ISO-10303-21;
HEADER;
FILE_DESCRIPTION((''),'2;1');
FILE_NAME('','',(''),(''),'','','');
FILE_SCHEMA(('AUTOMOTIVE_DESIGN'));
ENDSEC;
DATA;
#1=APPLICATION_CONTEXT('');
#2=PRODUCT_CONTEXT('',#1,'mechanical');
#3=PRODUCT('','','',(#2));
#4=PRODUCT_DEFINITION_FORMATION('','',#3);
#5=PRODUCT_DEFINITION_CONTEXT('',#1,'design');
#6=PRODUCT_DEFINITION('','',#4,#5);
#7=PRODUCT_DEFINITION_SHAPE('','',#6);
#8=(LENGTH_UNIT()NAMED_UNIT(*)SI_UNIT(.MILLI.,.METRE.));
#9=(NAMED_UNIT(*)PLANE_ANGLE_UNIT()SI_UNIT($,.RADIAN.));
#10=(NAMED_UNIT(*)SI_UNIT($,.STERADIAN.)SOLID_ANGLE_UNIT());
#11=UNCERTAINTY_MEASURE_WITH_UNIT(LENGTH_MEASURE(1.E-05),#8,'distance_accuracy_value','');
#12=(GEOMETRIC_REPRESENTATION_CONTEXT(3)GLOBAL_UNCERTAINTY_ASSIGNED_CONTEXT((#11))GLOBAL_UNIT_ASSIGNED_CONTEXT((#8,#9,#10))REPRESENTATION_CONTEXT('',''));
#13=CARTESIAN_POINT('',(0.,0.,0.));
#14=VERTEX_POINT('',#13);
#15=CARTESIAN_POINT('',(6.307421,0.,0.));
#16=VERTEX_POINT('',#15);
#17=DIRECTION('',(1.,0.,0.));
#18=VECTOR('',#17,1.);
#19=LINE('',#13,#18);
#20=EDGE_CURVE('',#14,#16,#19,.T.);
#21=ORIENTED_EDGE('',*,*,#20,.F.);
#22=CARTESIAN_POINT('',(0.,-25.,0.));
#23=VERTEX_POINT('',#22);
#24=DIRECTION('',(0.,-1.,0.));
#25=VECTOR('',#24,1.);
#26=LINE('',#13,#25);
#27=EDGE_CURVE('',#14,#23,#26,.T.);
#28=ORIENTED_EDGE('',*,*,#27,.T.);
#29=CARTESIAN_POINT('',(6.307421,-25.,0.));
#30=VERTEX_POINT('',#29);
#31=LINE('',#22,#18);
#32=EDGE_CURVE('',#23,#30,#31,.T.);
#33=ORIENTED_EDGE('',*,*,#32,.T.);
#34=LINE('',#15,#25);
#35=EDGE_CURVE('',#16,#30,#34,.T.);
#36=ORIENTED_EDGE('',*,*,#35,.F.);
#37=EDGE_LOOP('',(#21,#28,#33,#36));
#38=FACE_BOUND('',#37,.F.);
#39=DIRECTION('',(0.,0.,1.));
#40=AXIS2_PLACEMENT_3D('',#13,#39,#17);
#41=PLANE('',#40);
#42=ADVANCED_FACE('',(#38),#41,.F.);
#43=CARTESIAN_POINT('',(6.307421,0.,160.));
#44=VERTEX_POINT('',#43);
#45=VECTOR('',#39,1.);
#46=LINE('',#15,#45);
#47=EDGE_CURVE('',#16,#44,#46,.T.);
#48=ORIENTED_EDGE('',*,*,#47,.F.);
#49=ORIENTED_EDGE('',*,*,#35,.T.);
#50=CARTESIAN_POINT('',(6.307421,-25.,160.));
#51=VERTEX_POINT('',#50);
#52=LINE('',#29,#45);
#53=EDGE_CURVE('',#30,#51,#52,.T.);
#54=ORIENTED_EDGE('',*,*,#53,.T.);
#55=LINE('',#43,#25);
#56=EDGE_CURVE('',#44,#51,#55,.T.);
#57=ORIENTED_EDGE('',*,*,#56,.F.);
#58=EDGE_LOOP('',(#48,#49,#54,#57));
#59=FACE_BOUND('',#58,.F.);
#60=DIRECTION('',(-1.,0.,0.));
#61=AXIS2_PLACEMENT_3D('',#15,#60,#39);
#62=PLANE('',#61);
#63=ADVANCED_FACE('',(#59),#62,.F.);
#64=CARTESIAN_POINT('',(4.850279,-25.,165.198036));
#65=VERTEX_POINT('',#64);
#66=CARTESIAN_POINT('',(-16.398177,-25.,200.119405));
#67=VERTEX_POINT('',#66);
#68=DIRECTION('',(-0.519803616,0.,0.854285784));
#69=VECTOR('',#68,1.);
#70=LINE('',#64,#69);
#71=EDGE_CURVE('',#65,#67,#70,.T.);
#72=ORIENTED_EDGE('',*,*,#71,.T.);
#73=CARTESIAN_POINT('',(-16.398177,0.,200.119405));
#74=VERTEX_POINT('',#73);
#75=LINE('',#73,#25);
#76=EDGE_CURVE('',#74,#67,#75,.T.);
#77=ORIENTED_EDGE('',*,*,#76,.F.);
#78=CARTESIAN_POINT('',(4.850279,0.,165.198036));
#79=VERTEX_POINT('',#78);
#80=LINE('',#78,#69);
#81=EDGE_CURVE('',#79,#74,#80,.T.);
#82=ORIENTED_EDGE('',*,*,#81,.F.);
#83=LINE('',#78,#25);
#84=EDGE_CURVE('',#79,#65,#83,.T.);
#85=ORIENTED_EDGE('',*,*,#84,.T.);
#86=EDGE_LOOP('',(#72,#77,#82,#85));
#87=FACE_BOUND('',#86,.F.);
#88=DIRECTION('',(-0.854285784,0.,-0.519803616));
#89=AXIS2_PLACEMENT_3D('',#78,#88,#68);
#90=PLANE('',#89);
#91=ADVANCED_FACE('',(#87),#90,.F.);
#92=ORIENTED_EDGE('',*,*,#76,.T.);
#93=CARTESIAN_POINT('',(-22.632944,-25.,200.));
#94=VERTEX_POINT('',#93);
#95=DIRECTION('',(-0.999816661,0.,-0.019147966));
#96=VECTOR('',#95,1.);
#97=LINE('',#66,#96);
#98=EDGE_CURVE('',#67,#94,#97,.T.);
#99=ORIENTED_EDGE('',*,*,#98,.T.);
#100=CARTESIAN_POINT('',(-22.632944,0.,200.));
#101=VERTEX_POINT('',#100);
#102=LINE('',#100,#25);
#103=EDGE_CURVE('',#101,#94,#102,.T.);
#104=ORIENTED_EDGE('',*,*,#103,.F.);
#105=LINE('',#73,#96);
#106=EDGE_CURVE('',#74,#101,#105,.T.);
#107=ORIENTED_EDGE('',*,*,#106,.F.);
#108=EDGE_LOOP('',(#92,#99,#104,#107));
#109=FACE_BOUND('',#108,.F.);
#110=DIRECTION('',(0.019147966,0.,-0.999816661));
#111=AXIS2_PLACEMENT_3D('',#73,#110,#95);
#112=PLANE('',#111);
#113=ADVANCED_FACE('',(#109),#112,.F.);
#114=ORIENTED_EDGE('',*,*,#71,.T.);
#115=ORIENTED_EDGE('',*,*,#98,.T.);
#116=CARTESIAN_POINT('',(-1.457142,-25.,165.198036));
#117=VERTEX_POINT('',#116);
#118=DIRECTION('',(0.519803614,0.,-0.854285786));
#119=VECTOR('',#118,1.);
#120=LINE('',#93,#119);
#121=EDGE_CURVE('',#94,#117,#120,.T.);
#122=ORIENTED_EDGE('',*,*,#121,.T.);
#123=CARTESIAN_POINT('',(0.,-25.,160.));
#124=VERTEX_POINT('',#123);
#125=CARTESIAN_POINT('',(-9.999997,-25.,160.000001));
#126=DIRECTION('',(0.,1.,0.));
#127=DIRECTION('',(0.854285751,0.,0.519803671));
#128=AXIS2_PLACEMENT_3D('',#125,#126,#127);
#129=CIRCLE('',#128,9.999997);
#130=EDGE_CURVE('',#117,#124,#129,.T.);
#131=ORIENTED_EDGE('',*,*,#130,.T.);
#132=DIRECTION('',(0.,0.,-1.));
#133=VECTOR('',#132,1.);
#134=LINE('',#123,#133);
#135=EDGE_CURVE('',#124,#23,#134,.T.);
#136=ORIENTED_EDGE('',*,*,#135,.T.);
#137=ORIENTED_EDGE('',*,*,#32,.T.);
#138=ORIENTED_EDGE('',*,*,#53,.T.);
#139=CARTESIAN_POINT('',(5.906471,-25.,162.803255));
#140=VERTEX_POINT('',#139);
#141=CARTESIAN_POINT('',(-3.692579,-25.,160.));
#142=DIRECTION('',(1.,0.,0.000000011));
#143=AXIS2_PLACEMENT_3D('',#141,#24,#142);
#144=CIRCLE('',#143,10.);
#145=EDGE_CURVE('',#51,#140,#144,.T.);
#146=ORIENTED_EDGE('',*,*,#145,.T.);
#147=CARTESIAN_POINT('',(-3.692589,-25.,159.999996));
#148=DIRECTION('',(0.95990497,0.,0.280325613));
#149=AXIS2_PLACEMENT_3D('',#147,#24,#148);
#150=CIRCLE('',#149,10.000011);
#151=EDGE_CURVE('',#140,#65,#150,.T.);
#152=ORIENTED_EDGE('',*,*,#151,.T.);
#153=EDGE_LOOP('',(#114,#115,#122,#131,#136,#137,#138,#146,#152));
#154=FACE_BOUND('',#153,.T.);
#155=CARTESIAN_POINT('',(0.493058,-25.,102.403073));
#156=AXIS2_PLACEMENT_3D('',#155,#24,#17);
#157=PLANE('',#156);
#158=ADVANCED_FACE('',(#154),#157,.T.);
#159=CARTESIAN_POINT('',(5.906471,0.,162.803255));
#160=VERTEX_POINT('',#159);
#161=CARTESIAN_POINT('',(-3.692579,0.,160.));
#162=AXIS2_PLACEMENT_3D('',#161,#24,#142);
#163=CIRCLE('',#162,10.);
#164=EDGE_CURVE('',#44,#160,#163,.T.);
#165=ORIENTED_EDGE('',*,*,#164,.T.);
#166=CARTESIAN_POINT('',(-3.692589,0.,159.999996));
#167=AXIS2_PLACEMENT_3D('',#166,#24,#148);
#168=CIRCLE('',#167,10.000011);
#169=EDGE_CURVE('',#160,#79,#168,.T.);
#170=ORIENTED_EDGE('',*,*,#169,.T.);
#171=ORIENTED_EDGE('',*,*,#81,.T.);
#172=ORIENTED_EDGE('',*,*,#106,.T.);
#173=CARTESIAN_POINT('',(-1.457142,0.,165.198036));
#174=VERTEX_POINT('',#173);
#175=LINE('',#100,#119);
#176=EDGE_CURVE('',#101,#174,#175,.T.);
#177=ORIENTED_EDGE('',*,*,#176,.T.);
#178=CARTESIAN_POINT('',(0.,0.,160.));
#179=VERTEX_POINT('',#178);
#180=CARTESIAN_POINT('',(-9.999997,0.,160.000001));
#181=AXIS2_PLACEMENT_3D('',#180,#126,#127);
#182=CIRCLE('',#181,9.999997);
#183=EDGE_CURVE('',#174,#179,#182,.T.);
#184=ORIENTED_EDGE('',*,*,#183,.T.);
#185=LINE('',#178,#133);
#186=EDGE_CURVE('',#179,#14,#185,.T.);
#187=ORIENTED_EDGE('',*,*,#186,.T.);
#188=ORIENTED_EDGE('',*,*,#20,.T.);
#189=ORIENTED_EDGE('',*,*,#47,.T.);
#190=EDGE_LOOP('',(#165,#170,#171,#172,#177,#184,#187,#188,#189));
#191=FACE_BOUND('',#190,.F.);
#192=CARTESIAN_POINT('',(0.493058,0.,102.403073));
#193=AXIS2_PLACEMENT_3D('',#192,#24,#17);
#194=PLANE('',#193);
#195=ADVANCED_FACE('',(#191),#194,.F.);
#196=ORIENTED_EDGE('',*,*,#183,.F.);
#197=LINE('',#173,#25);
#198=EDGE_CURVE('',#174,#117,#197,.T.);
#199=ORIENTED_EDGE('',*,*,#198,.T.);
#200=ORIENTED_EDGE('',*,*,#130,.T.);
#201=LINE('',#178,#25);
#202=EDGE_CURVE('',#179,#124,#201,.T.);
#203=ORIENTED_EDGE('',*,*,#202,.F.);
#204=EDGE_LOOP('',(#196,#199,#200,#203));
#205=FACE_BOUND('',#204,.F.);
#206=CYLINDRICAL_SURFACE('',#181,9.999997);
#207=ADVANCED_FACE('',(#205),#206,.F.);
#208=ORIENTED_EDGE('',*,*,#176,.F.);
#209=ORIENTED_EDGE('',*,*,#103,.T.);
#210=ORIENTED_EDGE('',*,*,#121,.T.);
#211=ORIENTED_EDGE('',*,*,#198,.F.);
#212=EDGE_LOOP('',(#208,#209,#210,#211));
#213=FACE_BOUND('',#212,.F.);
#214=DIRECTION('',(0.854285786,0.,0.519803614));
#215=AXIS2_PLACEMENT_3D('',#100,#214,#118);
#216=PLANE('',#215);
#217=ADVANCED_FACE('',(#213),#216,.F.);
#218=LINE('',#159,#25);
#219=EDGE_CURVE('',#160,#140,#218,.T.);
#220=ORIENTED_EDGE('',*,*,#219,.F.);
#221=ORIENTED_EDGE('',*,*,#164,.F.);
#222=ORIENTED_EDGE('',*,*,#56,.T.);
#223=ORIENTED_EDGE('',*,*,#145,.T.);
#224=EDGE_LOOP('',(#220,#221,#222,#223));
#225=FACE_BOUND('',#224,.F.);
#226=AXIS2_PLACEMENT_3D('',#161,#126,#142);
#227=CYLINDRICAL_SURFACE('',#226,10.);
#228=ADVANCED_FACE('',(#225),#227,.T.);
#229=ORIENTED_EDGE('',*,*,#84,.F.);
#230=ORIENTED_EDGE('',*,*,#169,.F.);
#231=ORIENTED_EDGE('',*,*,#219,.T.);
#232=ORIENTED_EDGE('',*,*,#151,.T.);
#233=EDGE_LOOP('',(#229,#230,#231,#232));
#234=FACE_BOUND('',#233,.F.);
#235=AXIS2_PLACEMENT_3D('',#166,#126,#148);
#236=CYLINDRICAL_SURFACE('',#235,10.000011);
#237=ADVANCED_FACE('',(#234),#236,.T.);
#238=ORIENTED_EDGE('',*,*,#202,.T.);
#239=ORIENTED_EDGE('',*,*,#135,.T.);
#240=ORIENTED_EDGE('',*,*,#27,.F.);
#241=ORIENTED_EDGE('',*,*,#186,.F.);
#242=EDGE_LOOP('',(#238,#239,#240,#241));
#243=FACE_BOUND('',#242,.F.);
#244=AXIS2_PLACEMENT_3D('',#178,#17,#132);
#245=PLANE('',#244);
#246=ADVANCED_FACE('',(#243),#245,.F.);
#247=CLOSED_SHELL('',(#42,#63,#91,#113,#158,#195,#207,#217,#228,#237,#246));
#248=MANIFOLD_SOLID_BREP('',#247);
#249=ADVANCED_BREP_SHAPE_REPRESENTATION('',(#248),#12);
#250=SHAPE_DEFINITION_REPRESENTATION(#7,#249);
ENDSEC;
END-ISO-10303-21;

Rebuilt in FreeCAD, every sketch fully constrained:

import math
import FreeCAD as App
import Part
import Sketcher
Q = App.Units.Quantity

doc = App.newDocument("Part")
params = doc.addObject("Spreadsheet::Sheet", "Params")
for row, (alias, value) in enumerate([
    ("sketch1_radius", "10 mm"),
    ("sketch1_height", "160 mm"),
    ("pad1_length", "25 mm"),
], start=1):
    params.set(f"A{row}", alias)
    params.set(f"B{row}", "=" + value)
    params.setAlias(f"B{row}", alias)

body = doc.addObject("PartDesign::Body", "Body")

sketch1 = body.newObject("Sketcher::SketchObject", "Sketch")
sketch1.AttachmentSupport = (doc.getObject("XZ_Plane"), [""])
sketch1.MapMode = "FlatFace"
sketch1.addGeometry(Part.ArcOfCircle(Part.Circle(App.Vector(-10, 160, 0), App.Vector(0, 0, 1), 10), math.radians(0), math.radians(31)), False)
sketch1.addGeometry(Part.LineSegment(App.Vector(0, 160, 0), App.Vector(0, 0, 0)), False)
sketch1.addGeometry(Part.LineSegment(App.Vector(0, 0, 0), App.Vector(6.3, 0, 0)), False)
sketch1.addGeometry(Part.LineSegment(App.Vector(6.3, 0, 0), App.Vector(6.3, 160, 0)), False)
sketch1.addGeometry(Part.ArcOfCircle(Part.Circle(App.Vector(-3.7, 160, 0), App.Vector(0, 0, 1), 10), math.radians(0), math.radians(16.28)), False)
sketch1.addGeometry(Part.ArcOfCircle(Part.Circle(App.Vector(-3.7, 160, 0), App.Vector(0, 0, 1), 10), math.radians(16.28), math.radians(31.32)), False)
sketch1.addGeometry(Part.LineSegment(App.Vector(4.9, 165.2, 0), App.Vector(-16.4, 200.1, 0)), False)
sketch1.addGeometry(Part.LineSegment(App.Vector(-16.4, 200.1, 0), App.Vector(-22.6, 200, 0)), False)
sketch1.addGeometry(Part.LineSegment(App.Vector(-22.6, 200, 0), App.Vector(-1.5, 165.2, 0)), False)
sketch1.addConstraint(Sketcher.Constraint("Tangent", 0, 1, 1, 1))
sketch1.addConstraint(Sketcher.Constraint("Coincident", 1, 2, 2, 1))
sketch1.addConstraint(Sketcher.Constraint("Coincident", 2, 2, 3, 1))
sketch1.addConstraint(Sketcher.Constraint("Tangent", 3, 2, 4, 1))
sketch1.addConstraint(Sketcher.Constraint("Tangent", 4, 2, 5, 1))
sketch1.addConstraint(Sketcher.Constraint("Tangent", 5, 2, 6, 1))
sketch1.addConstraint(Sketcher.Constraint("Coincident", 6, 2, 7, 1))
sketch1.addConstraint(Sketcher.Constraint("Coincident", 7, 2, 8, 1))
sketch1.addConstraint(Sketcher.Constraint("Tangent", 8, 2, 0, 2))
sketch1.addConstraint(Sketcher.Constraint("Vertical", 1))
sketch1.addConstraint(Sketcher.Constraint("Horizontal", 2))
sketch1.addConstraint(Sketcher.Constraint("Vertical", 3))
sketch1.addConstraint(Sketcher.Constraint("Coincident", 1, 2, -1, 1))
sketch1.addConstraint(Sketcher.Constraint("Parallel", 6, 8))
sketch1.addConstraint(Sketcher.Constraint("Horizontal", 0, 3, 4, 3))
sketch1.addConstraint(Sketcher.Constraint("Horizontal", 5, 2, 8, 2))
sketch1.addConstraint(Sketcher.Constraint("Radius", 4, Q("10 mm")))
sketch1.addConstraint(Sketcher.Constraint("DistanceY", 1, 2, 1, 1, Q("160 mm")))
sketch1.addConstraint(Sketcher.Constraint("DistanceY", -1, 1, 7, 2, Q("200 mm")))
sketch1.addConstraint(Sketcher.Constraint("Radius", 5, Q("10.000011 mm")))
sketch1.addConstraint(Sketcher.Constraint("DistanceX", 2, 1, 2, 2, Q("6.307421 mm")))
sketch1.addConstraint(Sketcher.Constraint("Distance", 7, Q("6.23591 mm")))
sketch1.addConstraint(Sketcher.Constraint("Distance", 8, Q("40.738082 mm")))
sketch1.addConstraint(Sketcher.Constraint("DistanceX", -1, 1, 4, 2, Q("5.906471 mm")))
sketch1.setExpression("Constraints[16]", "Params.sketch1_radius")
sketch1.setExpression("Constraints[17]", "Params.sketch1_height")
pad1 = body.newObject("PartDesign::Pad", "Pad")
pad1.Profile = sketch1
pad1.setExpression("Length", "Params.pad1_length")

doc.recompute()
